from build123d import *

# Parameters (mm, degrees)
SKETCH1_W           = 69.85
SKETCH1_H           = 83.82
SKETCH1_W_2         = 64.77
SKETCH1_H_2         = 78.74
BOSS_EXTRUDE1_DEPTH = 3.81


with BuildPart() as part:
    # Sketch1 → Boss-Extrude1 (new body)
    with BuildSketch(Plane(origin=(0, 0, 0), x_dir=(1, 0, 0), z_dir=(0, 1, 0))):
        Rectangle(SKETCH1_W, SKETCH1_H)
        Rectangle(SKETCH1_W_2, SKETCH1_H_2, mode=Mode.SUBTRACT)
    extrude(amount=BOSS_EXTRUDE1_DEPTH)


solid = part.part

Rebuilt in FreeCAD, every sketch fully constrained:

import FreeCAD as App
import Part
import Sketcher
from FreeCAD import Vector
Q = App.Units.Quantity


def add_polygon(sketch, points):
    """Adds a closed chain of lines whose ends are joined by coincident constraints."""
    first, n = sketch.GeometryCount, len(points)
    for a, b in zip(points, points[1:] + points[:1]):
        sketch.addGeometry(Part.LineSegment(App.Vector(*a, 0), App.Vector(*b, 0)), False)
    for i in range(n):
        sketch.addConstraint(Sketcher.Constraint("Coincident", first + i, 2, first + (i + 1) % n, 1))

doc = App.newDocument("Part")
body = doc.addObject("PartDesign::Body", "Body")

# Sketch on XZ plane
sketch1 = body.newObject("Sketcher::SketchObject", "Sketch")
sketch1.AttachmentSupport = (doc.getObject("XZ_Plane"), [""])
sketch1.MapMode = "FlatFace"
add_polygon(sketch1, [(-35, -42), (-35, 42), (35, 42), (35, -42)])  # lines 0-3
add_polygon(sketch1, [(32, 39), (-32, 39), (-32, -39), (32, -39)])  # lines 4-7
sketch1.addConstraint([
    Sketcher.Constraint("Vertical", 0),
    Sketcher.Constraint("Horizontal", 1),
    Sketcher.Constraint("Vertical", 2),
    Sketcher.Constraint("Horizontal", 3),
    Sketcher.Constraint("Horizontal", 4),
    Sketcher.Constraint("Vertical", 5),
    Sketcher.Constraint("Horizontal", 6),
    Sketcher.Constraint("Vertical", 7),
    Sketcher.Constraint("Symmetric", 0, 2, 2, 2, -1, 1),
    Sketcher.Constraint("Symmetric", 4, 2, 6, 2, -1, 1),
    Sketcher.Constraint("DistanceY", 0, 1, 0, 2, Q("3.3 in")),
    Sketcher.Constraint("DistanceY", 5, 2, 5, 1, Q("3.1 in")),
    Sketcher.Constraint("DistanceX", 1, 1, 1, 2, Q("2.75 in")),
    Sketcher.Constraint("DistanceX", 4, 2, 4, 1, Q("2.55 in")),
])
pad1 = body.newObject("PartDesign::Pad", "Pad")
pad1.Profile = sketch1
pad1.Length = Q("0.15 in")
pad1.Reversed = True

doc.recompute()
